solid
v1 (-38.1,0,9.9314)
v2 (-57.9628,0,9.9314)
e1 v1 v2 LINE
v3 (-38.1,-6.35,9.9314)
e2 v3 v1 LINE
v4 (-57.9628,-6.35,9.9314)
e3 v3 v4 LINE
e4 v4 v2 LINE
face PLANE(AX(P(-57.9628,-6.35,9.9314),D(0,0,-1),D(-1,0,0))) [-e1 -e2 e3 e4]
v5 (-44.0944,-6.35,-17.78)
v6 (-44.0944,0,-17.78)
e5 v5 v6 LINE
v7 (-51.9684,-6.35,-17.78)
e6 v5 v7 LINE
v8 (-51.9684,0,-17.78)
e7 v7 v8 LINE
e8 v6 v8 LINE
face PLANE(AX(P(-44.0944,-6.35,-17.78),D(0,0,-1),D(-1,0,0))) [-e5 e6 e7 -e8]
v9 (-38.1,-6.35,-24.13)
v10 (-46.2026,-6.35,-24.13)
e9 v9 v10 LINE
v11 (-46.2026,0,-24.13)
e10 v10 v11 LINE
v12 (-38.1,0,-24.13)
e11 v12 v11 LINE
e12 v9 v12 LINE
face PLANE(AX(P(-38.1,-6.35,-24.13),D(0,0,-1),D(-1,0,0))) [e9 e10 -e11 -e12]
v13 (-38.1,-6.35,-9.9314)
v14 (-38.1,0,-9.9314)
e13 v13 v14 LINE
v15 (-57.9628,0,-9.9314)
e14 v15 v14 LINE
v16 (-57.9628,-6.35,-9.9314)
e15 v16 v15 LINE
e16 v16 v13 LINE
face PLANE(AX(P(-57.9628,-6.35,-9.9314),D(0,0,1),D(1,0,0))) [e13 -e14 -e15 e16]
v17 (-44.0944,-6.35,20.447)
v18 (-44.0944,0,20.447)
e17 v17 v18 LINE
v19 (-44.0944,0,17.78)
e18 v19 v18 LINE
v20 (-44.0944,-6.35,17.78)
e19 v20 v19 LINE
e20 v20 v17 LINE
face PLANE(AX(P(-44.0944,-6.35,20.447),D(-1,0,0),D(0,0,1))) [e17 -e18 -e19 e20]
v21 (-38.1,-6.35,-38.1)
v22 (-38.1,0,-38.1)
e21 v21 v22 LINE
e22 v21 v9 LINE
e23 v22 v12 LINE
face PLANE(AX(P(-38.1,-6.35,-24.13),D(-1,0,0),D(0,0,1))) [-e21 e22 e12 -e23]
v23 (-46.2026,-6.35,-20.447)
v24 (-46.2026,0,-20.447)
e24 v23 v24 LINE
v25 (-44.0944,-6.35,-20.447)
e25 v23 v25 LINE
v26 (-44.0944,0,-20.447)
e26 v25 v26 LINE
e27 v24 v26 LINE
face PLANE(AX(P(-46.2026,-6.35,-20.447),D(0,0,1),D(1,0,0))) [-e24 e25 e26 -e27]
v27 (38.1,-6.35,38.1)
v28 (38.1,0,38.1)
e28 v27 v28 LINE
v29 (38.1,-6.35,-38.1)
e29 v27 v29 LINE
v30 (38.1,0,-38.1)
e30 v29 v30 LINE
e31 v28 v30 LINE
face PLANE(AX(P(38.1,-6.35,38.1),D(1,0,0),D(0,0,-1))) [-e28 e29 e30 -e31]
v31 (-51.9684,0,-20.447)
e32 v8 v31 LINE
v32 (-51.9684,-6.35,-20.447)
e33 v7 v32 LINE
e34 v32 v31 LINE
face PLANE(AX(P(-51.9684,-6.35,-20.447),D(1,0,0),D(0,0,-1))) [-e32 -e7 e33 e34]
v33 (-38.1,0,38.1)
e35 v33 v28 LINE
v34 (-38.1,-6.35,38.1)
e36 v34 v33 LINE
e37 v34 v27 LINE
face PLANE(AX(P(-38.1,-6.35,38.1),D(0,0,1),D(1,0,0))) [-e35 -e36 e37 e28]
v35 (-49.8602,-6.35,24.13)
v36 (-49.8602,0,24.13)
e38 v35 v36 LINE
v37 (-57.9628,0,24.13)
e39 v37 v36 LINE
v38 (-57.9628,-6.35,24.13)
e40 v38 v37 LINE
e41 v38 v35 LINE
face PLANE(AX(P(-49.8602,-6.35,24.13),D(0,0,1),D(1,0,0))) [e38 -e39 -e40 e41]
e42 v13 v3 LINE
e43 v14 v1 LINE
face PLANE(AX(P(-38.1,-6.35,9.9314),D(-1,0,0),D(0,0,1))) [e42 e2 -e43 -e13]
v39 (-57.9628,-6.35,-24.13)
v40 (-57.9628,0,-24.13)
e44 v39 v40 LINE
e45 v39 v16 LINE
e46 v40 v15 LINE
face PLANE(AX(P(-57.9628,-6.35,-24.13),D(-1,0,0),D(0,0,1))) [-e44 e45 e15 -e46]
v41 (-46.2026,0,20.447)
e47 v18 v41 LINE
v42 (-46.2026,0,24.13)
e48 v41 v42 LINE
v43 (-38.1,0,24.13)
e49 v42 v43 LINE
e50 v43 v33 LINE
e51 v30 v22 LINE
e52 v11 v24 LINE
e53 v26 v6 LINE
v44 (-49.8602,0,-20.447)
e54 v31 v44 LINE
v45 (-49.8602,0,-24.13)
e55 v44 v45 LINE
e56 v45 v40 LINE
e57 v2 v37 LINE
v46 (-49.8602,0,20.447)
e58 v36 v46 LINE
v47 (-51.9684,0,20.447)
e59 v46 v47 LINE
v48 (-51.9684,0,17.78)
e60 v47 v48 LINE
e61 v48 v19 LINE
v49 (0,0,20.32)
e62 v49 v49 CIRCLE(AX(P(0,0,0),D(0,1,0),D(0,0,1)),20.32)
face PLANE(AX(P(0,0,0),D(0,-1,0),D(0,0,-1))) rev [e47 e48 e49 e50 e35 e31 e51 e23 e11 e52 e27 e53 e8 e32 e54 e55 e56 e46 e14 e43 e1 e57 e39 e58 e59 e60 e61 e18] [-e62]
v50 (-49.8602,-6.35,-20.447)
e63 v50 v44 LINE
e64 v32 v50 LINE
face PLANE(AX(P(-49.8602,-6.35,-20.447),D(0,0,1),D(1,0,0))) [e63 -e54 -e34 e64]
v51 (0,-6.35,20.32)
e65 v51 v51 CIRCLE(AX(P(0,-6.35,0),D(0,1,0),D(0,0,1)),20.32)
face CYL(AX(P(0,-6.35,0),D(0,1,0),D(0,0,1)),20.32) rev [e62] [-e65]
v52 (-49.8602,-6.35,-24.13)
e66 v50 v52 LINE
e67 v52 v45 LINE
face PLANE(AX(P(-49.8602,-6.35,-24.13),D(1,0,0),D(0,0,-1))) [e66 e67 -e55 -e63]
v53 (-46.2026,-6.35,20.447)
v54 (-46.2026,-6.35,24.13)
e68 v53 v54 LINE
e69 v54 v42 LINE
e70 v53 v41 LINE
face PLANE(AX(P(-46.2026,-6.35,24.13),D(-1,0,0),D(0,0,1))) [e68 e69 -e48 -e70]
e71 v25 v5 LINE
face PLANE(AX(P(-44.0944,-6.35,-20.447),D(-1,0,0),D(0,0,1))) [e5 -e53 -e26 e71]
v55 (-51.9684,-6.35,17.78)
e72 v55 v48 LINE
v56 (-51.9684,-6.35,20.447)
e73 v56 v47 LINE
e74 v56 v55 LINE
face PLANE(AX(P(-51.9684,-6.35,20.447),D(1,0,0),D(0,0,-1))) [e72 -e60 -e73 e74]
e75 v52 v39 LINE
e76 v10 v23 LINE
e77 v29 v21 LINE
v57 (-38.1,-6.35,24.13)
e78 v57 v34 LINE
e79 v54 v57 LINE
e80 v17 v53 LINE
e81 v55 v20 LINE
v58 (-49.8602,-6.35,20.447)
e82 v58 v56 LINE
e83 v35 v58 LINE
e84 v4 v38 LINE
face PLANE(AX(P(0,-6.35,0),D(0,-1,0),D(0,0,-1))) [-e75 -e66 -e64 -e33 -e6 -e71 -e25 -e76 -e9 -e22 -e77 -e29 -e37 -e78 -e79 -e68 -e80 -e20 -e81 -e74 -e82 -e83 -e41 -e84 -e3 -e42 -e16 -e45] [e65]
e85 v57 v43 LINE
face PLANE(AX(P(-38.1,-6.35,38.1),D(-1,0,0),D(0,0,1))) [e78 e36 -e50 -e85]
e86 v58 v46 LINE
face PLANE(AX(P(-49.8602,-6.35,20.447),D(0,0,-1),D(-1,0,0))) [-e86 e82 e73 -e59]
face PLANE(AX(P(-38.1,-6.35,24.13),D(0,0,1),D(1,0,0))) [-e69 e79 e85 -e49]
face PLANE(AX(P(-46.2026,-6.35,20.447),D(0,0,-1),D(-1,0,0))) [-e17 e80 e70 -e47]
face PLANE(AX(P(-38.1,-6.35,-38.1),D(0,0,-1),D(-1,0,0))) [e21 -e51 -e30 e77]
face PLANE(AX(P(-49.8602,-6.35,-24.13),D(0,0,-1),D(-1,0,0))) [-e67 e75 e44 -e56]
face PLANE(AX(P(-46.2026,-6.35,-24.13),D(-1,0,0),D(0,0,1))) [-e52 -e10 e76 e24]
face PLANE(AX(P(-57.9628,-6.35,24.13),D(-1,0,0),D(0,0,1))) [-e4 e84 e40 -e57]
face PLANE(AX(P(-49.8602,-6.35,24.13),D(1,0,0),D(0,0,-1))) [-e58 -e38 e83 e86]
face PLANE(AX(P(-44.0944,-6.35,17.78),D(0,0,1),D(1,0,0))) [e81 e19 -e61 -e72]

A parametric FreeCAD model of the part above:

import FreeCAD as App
import Part
import Sketcher
Q = App.Units.Quantity


def add_polygon(sketch, points):
    """Adds a closed chain of lines whose ends are joined by coincident constraints."""
    first, n = sketch.GeometryCount, len(points)
    for a, b in zip(points, points[1:] + points[:1]):
        sketch.addGeometry(Part.LineSegment(App.Vector(*a, 0), App.Vector(*b, 0)), False)
    for i in range(n):
        sketch.addConstraint(Sketcher.Constraint("Coincident", first + i, 2, first + (i + 1) % n, 1))

doc = App.newDocument("Part")
body = doc.addObject("PartDesign::Body", "Body")

# Sketch on XZ plane
sketch1 = body.newObject("Sketcher::SketchObject", "Sketch")
sketch1.AttachmentSupport = (doc.getObject("XZ_Plane"), [""])
sketch1.MapMode = "FlatFace"
add_polygon(sketch1, [(-38.1, 38.1), (38.1, 38.1), (38.1, -38.1), (-38.1, -38.1), (-38.1, -24.13), (-46.2026, -24.13), (-46.2026, -20.447), (-44.0944, -20.447), (-44.0944, -17.78), (-51.9684, -17.78), (-51.9684, -20.447), (-49.8602, -20.447), (-49.8602, -24.13), (-57.9628, -24.13), (-57.9628, -9.9314), (-38.1, -9.9314), (-38.1, 9.9314), (-57.9628, 9.9314), (-57.9628, 24.13), (-49.8602, 24.13), (-49.8602, 20.447), (-51.9684, 20.447), (-51.9684, 17.78), (-44.0944, 17.78), (-44.0944, 20.447), (-46.2026, 20.447), (-46.2026, 24.13), (-38.1, 24.13)])  # lines 0-27
sketch1.addGeometry(Part.Circle(App.Vector(0, 0, 0), App.Vector(0, 0, 1), 20.32), False)  # 28
sketch1.addConstraint([
    Sketcher.Constraint("Horizontal", 0),
    Sketcher.Constraint("Vertical", 1),
    Sketcher.Constraint("Horizontal", 2),
    Sketcher.Constraint("Vertical", 3),
    Sketcher.Constraint("Horizontal", 4),
    Sketcher.Constraint("Vertical", 5),
    Sketcher.Constraint("Horizontal", 6),
    Sketcher.Constraint("Vertical", 7),
    Sketcher.Constraint("Horizontal", 8),
    Sketcher.Constraint("Vertical", 9),
    Sketcher.Constraint("Horizontal", 10),
    Sketcher.Constraint("Vertical", 11),
    Sketcher.Constraint("Horizontal", 12),
    Sketcher.Constraint("Vertical", 13),
    Sketcher.Constraint("Horizontal", 14),
    Sketcher.Constraint("Vertical", 15),
    Sketcher.Constraint("Horizontal", 16),
    Sketcher.Constraint("Vertical", 17),
    Sketcher.Constraint("Horizontal", 18),
    Sketcher.Constraint("Vertical", 19),
    Sketcher.Constraint("Horizontal", 20),
    Sketcher.Constraint("Vertical", 21),
    Sketcher.Constraint("Horizontal", 22),
    Sketcher.Constraint("Vertical", 23),
    Sketcher.Constraint("Horizontal", 24),
    Sketcher.Constraint("Vertical", 25),
    Sketcher.Constraint("Horizontal", 26),
    Sketcher.Constraint("Vertical", 27),
    Sketcher.Constraint("Coincident", 28, 3, -1, 1),
    Sketcher.Constraint("Symmetric", 0, 2, 2, 2, -1, 1),
    Sketcher.Constraint("Symmetric", 13, 2, 16, 2, -1),
    Sketcher.Constraint("Symmetric", 11, 2, 18, 2, -1),
    Sketcher.Constraint("Symmetric", 9, 2, 20, 2, -1),
    Sketcher.Constraint("Symmetric", 7, 2, 22, 2, -1),
    Sketcher.Constraint("Symmetric", 5, 2, 24, 2, -1),
    Sketcher.Constraint("Symmetric", 3, 2, 26, 2, -1),
    Sketcher.Constraint("Horizontal", 6, 2, 9, 2),
    Sketcher.Constraint("Horizontal", 4, 2, 11, 2),
    Sketcher.Constraint("Vertical", 3, 2, 14, 2),
    Sketcher.Constraint("Equal", 6, 10),
    Sketcher.Constraint("Equal", 4, 12),
    Sketcher.Constraint("Equal", 2, 1),
    Sketcher.Constraint("Equal", 16, 15),
    Sketcher.Constraint("Diameter", 28, Q("1.6 in")),
    Sketcher.Constraint("DistanceX", 0, 1, 0, 2, Q("3 in")),
    Sketcher.Constraint("DistanceX", 8, 2, 8, 1, Q("0.31 in")),
    Sketcher.Constraint("DistanceY", 3, 1, 3, 2, Q("0.55 in")),
    Sketcher.Constraint("DistanceY", 7, 2, -1, 1, Q("0.7 in")),
    Sketcher.Constraint("DistanceX", 4, 2, 4, 1, Q("0.319 in")),
    Sketcher.Constraint("DistanceX", 6, 1, 6, 2, Q("0.083 in")),
    Sketcher.Constraint("DistanceY", 5, 1, 5, 2, Q("0.145 in")),
])
pad1 = body.newObject("PartDesign::Pad", "Pad")
pad1.Profile = sketch1
pad1.Length = Q("0.25 in")

doc.recompute()
